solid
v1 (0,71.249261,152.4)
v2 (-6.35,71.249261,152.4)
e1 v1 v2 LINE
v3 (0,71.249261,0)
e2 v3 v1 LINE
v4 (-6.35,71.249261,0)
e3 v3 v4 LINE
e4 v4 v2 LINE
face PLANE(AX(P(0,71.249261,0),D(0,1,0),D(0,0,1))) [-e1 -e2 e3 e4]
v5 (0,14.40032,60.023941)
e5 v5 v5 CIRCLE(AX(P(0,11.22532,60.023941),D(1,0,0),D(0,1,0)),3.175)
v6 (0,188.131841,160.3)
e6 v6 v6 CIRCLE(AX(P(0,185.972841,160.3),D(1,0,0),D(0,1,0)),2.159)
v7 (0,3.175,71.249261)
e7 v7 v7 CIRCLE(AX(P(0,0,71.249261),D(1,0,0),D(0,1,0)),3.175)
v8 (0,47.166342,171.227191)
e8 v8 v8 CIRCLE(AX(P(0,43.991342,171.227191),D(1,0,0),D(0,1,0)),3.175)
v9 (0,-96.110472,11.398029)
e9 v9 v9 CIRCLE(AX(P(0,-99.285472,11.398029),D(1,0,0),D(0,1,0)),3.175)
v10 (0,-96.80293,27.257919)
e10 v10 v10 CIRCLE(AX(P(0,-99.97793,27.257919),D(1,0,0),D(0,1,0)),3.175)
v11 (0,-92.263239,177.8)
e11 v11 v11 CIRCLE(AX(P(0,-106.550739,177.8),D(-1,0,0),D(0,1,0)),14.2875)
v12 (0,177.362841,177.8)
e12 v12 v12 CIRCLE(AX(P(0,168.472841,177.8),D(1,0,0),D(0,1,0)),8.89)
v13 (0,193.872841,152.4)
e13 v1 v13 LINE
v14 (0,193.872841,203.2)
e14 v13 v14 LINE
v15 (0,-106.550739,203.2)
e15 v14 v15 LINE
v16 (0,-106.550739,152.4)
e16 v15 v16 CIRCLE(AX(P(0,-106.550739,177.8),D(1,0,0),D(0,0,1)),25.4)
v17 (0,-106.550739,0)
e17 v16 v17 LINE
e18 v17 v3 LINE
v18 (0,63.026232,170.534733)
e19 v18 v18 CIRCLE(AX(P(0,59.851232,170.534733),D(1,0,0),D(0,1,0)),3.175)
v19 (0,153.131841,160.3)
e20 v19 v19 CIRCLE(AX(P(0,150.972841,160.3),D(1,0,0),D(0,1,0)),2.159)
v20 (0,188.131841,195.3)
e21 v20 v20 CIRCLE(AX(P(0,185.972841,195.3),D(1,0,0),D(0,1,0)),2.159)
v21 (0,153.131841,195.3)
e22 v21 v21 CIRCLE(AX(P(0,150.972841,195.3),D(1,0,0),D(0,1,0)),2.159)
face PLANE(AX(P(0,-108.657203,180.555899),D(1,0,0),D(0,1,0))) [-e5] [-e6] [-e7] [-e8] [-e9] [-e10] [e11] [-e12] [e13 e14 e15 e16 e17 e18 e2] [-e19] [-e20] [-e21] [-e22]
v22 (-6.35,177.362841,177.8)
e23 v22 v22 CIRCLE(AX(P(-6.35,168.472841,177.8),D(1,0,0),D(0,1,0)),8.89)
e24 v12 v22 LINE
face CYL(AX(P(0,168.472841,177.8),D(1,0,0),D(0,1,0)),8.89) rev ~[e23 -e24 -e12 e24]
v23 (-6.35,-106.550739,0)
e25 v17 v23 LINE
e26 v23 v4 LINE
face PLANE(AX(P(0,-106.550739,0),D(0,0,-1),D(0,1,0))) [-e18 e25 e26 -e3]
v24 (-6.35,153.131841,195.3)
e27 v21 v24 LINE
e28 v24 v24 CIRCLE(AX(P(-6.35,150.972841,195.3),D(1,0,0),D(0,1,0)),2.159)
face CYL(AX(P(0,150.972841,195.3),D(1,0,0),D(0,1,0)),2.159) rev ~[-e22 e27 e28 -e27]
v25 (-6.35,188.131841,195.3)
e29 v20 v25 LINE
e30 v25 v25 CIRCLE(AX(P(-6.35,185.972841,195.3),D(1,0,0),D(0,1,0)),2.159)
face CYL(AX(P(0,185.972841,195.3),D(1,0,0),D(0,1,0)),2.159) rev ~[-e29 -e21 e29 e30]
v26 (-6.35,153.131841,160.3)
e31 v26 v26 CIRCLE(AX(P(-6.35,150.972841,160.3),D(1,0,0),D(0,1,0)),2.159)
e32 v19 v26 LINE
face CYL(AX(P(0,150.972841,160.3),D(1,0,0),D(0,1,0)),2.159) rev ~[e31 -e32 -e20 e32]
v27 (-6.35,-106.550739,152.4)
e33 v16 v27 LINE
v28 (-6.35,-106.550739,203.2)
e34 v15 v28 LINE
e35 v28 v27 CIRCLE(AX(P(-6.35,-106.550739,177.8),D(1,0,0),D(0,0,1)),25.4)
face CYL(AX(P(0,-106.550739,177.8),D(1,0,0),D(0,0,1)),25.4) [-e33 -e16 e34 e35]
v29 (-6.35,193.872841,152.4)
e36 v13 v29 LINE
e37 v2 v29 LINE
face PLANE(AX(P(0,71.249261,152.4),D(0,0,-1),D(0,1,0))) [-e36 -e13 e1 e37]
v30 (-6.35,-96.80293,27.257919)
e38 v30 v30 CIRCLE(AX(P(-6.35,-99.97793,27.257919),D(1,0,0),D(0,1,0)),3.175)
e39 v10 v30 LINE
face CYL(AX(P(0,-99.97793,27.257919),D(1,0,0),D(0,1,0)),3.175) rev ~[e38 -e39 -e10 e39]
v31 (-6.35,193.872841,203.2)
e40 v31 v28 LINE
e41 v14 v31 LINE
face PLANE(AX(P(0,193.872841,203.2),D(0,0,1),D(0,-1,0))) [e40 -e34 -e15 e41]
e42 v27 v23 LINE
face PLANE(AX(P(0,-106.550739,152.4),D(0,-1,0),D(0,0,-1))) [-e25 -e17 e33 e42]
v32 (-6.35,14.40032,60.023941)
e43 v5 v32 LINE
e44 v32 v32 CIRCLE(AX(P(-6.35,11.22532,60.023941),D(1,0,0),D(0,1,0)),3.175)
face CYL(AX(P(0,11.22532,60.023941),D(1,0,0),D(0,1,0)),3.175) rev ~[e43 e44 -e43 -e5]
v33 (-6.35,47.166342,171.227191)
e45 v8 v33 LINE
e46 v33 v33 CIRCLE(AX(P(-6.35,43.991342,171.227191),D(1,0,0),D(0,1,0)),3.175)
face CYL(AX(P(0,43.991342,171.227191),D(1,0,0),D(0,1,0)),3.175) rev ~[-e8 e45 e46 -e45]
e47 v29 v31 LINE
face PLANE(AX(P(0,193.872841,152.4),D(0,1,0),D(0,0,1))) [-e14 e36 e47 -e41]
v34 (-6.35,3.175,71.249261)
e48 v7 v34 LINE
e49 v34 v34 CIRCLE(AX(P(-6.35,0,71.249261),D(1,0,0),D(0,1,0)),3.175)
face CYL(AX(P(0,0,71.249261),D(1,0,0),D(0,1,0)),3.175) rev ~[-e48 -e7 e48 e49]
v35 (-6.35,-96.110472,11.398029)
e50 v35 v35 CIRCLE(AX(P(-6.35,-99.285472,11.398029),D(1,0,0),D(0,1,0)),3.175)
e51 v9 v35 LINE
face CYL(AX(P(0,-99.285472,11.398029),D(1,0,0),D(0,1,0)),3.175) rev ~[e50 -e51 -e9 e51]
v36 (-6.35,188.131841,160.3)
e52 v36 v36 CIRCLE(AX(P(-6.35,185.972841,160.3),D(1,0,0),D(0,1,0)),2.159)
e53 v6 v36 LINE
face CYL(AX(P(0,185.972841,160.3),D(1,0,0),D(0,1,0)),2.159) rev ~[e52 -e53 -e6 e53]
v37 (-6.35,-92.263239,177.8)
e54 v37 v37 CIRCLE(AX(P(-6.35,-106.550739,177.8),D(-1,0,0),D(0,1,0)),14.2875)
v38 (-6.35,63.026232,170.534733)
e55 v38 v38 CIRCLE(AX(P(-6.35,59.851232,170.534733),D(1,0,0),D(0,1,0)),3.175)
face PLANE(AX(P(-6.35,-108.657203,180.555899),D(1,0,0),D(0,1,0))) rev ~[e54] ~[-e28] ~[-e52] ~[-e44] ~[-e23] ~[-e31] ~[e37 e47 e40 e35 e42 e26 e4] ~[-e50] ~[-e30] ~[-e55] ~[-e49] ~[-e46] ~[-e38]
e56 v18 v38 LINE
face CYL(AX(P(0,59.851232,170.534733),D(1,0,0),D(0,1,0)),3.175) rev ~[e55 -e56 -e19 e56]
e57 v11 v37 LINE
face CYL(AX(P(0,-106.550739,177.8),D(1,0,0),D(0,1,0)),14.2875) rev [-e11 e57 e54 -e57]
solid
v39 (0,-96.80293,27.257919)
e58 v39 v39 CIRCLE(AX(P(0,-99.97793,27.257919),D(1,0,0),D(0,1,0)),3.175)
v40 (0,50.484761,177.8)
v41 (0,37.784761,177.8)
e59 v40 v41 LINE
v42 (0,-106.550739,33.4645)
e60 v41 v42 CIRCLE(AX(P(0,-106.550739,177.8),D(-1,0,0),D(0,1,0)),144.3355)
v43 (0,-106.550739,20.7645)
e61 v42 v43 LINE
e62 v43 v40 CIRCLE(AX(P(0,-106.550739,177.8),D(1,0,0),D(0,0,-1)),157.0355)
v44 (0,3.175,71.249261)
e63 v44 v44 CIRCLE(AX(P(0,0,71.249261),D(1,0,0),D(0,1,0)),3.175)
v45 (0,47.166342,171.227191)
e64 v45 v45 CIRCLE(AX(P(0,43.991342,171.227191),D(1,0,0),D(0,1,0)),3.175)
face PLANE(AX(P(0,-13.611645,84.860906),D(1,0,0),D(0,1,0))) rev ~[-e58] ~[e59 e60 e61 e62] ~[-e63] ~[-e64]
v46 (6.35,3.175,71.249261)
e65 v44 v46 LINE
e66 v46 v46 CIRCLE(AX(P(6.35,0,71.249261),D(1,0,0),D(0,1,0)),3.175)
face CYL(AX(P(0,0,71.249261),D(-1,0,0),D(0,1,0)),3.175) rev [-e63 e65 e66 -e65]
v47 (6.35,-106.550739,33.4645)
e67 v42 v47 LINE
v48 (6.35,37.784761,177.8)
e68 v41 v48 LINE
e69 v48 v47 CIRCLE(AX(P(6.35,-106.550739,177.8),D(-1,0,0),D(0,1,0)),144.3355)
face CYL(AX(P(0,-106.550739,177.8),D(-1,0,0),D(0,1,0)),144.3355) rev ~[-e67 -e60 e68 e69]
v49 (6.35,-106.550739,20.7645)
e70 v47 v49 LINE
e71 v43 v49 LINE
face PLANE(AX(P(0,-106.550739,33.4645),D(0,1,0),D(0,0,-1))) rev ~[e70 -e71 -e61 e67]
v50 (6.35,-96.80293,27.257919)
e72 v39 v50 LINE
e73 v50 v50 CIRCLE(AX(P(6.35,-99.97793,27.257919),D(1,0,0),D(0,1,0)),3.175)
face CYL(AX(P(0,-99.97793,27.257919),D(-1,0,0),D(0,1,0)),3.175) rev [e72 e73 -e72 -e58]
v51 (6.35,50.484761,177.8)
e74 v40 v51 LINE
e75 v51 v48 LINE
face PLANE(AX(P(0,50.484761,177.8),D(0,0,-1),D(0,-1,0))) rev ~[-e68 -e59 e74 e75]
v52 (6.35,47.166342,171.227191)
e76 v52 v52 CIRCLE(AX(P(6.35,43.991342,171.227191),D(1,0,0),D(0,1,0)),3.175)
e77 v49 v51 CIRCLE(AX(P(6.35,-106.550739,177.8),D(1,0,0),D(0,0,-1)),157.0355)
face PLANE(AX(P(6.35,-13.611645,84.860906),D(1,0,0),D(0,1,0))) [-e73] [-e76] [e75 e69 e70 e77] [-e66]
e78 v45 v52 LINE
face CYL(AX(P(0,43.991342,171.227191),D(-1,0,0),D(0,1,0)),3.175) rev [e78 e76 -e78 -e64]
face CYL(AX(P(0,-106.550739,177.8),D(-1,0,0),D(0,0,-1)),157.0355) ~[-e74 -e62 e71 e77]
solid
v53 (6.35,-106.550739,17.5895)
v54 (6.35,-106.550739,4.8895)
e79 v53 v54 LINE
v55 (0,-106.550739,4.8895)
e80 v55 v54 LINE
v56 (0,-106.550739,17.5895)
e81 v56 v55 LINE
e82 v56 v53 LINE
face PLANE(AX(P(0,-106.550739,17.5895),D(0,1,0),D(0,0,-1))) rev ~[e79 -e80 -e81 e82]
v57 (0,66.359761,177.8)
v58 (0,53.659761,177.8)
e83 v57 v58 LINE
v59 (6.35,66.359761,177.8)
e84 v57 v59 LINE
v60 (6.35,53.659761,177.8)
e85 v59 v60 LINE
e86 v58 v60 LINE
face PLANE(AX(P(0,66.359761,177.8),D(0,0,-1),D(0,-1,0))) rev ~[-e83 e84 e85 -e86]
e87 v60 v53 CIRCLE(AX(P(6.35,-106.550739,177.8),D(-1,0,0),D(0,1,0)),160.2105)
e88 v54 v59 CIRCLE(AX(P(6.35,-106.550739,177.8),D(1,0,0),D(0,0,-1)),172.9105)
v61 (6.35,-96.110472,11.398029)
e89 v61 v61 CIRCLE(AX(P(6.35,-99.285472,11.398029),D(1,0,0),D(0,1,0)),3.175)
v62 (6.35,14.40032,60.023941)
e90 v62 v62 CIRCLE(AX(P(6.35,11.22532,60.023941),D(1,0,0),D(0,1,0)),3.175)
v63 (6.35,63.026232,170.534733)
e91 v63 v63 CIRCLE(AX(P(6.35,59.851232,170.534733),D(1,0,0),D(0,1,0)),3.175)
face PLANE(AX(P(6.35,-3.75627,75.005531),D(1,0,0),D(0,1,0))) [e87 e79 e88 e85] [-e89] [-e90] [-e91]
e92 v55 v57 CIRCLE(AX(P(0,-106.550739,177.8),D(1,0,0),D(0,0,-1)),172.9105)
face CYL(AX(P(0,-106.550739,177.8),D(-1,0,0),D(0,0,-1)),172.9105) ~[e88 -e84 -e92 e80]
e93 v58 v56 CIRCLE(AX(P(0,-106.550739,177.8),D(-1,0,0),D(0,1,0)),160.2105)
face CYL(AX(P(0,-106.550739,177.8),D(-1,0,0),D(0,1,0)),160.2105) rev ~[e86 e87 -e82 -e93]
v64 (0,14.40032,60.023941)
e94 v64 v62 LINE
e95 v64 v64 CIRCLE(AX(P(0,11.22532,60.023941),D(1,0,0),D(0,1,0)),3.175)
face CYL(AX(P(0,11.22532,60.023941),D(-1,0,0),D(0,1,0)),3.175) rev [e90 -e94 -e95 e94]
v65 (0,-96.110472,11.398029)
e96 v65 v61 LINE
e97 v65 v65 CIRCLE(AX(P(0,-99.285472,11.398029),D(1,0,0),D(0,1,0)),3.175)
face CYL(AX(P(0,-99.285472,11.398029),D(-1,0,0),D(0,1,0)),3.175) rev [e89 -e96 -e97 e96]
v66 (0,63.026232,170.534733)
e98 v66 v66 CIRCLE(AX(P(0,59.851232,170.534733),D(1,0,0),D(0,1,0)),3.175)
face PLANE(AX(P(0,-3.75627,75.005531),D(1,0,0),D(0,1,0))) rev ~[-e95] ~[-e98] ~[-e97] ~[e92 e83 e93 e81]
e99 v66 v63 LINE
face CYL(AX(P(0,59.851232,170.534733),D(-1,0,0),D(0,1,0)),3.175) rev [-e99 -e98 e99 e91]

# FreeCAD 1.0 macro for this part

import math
import FreeCAD as App
import Part
import Sketcher
from FreeCAD import Vector
Q = App.Units.Quantity

doc = App.newDocument("Part")
body = doc.addObject("PartDesign::Body", "Body")

# Sketch on YZ plane
sketch1 = doc.addObject("Sketcher::SketchObject", "Sketch")
body.addObject(sketch1)
sketch1.AttachmentSupport = (doc.YZ_Plane, [""])
sketch1.MapMode = "FlatFace"
sketch1.addGeometry(Part.ArcOfCircle(Part.Circle(Vector(-106.550739, 177.8, 0), Vector(0, 0, 1), 25.4), math.radians(90), math.radians(270)), False)
sketch1.addGeometry(Part.LineSegment(Vector(-106.550739, 152.4, 0), Vector(-106.550739, 0, 0)), False)
sketch1.addGeometry(Part.LineSegment(Vector(-106.550739, 0, 0), Vector(71.249261, 0, 0)), False)
sketch1.addGeometry(Part.LineSegment(Vector(71.249261, 0, 0), Vector(71.249261, 152.4, 0)), False)
sketch1.addGeometry(Part.LineSegment(Vector(71.249261, 152.4, 0), Vector(193.872841, 152.4, 0)), False)
sketch1.addGeometry(Part.LineSegment(Vector(193.872841, 152.4, 0), Vector(193.872841, 203.2, 0)), False)
sketch1.addGeometry(Part.LineSegment(Vector(193.872841, 203.2, 0), Vector(-106.550739, 203.2, 0)), False)
sketch1.addGeometry(Part.Circle(Vector(-99.285472, 11.398029, 0), Vector(0, 0, 1), 3.175), False)
sketch1.addGeometry(Part.Circle(Vector(-99.97793, 27.257919, 0), Vector(0, 0, 1), 3.175), False)
sketch1.addGeometry(Part.Circle(Vector(11.22532, 60.023941, 0), Vector(0, 0, 1), 3.175), False)
sketch1.addGeometry(Part.Circle(Vector(0, 71.249261, 0), Vector(0, 0, 1), 3.175), False)
sketch1.addGeometry(Part.Circle(Vector(-106.550739, 177.8, 0), Vector(0, 0, 1), 14.2875), False)
sketch1.addGeometry(Part.Circle(Vector(43.991342, 171.227191, 0), Vector(0, 0, 1), 3.175), False)
sketch1.addGeometry(Part.Circle(Vector(59.851232, 170.534733, 0), Vector(0, 0, 1), 3.175), False)
sketch1.addGeometry(Part.Circle(Vector(150.972841, 160.3, 0), Vector(0, 0, 1), 2.159), False)
sketch1.addGeometry(Part.Circle(Vector(185.972841, 160.3, 0), Vector(0, 0, 1), 2.159), False)
sketch1.addGeometry(Part.Circle(Vector(168.472841, 177.8, 0), Vector(0, 0, 1), 8.89), False)
sketch1.addGeometry(Part.Circle(Vector(150.972841, 195.3, 0), Vector(0, 0, 1), 2.159), False)
sketch1.addGeometry(Part.Circle(Vector(185.972841, 195.3, 0), Vector(0, 0, 1), 2.159), False)
sketch1.addConstraint(Sketcher.Constraint("Coincident", 0, 2, 1, 1))
sketch1.addConstraint(Sketcher.Constraint("Coincident", 1, 2, 2, 1))
sketch1.addConstraint(Sketcher.Constraint("Coincident", 2, 2, 3, 1))
sketch1.addConstraint(Sketcher.Constraint("Coincident", 3, 2, 4, 1))
sketch1.addConstraint(Sketcher.Constraint("Coincident", 4, 2, 5, 1))
sketch1.addConstraint(Sketcher.Constraint("Coincident", 5, 2, 6, 1))
sketch1.addConstraint(Sketcher.Constraint("Tangent", 6, 2, 0, 1))
sketch1.addConstraint(Sketcher.Constraint("Vertical", 1))
sketch1.addConstraint(Sketcher.Constraint("Horizontal", 2))
sketch1.addConstraint(Sketcher.Constraint("Vertical", 3))
sketch1.addConstraint(Sketcher.Constraint("Horizontal", 4))
sketch1.addConstraint(Sketcher.Constraint("Vertical", 5))
sketch1.addConstraint(Sketcher.Constraint("Horizontal", 6))
sketch1.addConstraint(Sketcher.Constraint("Coincident", 11, 3, 0, 3))
sketch1.addConstraint(Sketcher.Constraint("Equal", 7, 8))
sketch1.addConstraint(Sketcher.Constraint("Equal", 8, 9))
sketch1.addConstraint(Sketcher.Constraint("Equal", 9, 10))
sketch1.addConstraint(Sketcher.Constraint("Equal", 10, 12))
sketch1.addConstraint(Sketcher.Constraint("Equal", 12, 13))
sketch1.addConstraint(Sketcher.Constraint("Equal", 14, 15))
sketch1.addConstraint(Sketcher.Constraint("Equal", 15, 17))
sketch1.addConstraint(Sketcher.Constraint("Equal", 17, 18))
sketch1.addConstraint(Sketcher.Constraint("PointOnObject", 10, 3, -2))
sketch1.addConstraint(Sketcher.Constraint("PointOnObject", 1, 2, -1))
sketch1.addConstraint(Sketcher.Constraint("Horizontal", 14, 3, 15, 3))
sketch1.addConstraint(Sketcher.Constraint("Horizontal", 11, 3, 16, 3))
sketch1.addConstraint(Sketcher.Constraint("Horizontal", 17, 3, 18, 3))
sketch1.addConstraint(Sketcher.Constraint("Horizontal", 0, 2, 3, 2))
sketch1.addConstraint(Sketcher.Constraint("Vertical", 14, 3, 17, 3))
sketch1.addConstraint(Sketcher.Constraint("Vertical", 15, 3, 18, 3))
sketch1.addConstraint(Sketcher.Constraint("Vertical", 11, 3, 0, 2))
sketch1.addConstraint(Sketcher.Constraint("Radius", 0, Q("1 in")))
sketch1.addConstraint(Sketcher.Constraint("Diameter", 16, Q("0.7 in")))
sketch1.addConstraint(Sketcher.Constraint("Diameter", 7, Q("0.25 in")))
sketch1.addConstraint(Sketcher.Constraint("Diameter", 14, Q("0.17 in")))
sketch1.addConstraint(Sketcher.Constraint("DistanceX", 2, 1, 2, 2, Q("7 in")))
sketch1.addConstraint(Sketcher.Constraint("DistanceY", 1, 2, 1, 1, Q("6 in")))
sketch1.addConstraint(Sketcher.Constraint("Diameter", 11, Q("1.125 in")))
sketch1.addConstraint(Sketcher.Constraint("DistanceX", 16, 3, 4, 2, Q("1 in")))
sketch1.addConstraint(Sketcher.Constraint("DistanceX", 4, 1, 4, 2, Q("4.8277 in")))
sketch1.addConstraint(Sketcher.Constraint("DistanceY", -1, 1, 14, 3, 160.3))
sketch1.addConstraint(Sketcher.Constraint("DistanceY", -1, 1, 17, 3, 195.3))
sketch1.addConstraint(Sketcher.Constraint("DistanceX", 12, 3, 14, 3, 106.981499))
sketch1.addConstraint(Sketcher.Constraint("DistanceX", 14, 3, 15, 3, 35.0))
sketch1.addConstraint(Sketcher.Constraint("DistanceX", 14, 3, 16, 3, 17.5))
sketch1.addConstraint(Sketcher.Constraint("DistanceX", 0, 3, -1, 1, 106.550739))
sketch1.addConstraint(Sketcher.Constraint("DistanceX", 7, 3, -1, 1, 99.285472))
sketch1.addConstraint(Sketcher.Constraint("DistanceY", -1, 1, 7, 3, 11.398029))
sketch1.addConstraint(Sketcher.Constraint("DistanceX", 8, 3, -1, 1, 99.97793))
sketch1.addConstraint(Sketcher.Constraint("DistanceY", -1, 1, 8, 3, 27.257919))
sketch1.addConstraint(Sketcher.Constraint("DistanceX", -1, 1, 9, 3, 11.22532))
sketch1.addConstraint(Sketcher.Constraint("DistanceY", -1, 1, 9, 3, 60.023941))
sketch1.addConstraint(Sketcher.Constraint("DistanceY", -1, 1, 10, 3, 71.249261))
sketch1.addConstraint(Sketcher.Constraint("DistanceY", -1, 1, 12, 3, 171.227191))
sketch1.addConstraint(Sketcher.Constraint("DistanceX", 12, 3, 13, 3, 15.859891))
sketch1.addConstraint(Sketcher.Constraint("DistanceY", 10, 3, 13, 3, 99.285472))
pad1 = doc.addObject("PartDesign::Pad", "Pad")
body.addObject(pad1)
pad1.Profile = sketch1
pad1.Length = Q("0.25 in")
pad1.Reversed = True
body2 = doc.addObject("PartDesign::Body", "Body001")

# Sketch on YZ plane
sketch2 = doc.addObject("Sketcher::SketchObject", "Sketch001")
body2.addObject(sketch2)
sketch2.AttachmentSupport = (doc.getObject("YZ_Plane001"), [""])
sketch2.MapMode = "FlatFace"
sketch2.addGeometry(Part.LineSegment(Vector(50.484761, 177.8, 0), Vector(37.784761, 177.8, 0)), False)
sketch2.addGeometry(Part.ArcOfCircle(Part.Circle(Vector(-106.550739, 177.8, 0), Vector(0, 0, 1), 144.3355), math.radians(-90), math.radians(0)), False)
sketch2.addGeometry(Part.LineSegment(Vector(-106.550739, 33.4645, 0), Vector(-106.550739, 20.7645, 0)), False)
sketch2.addGeometry(Part.ArcOfCircle(Part.Circle(Vector(-106.550739, 177.8, 0), Vector(0, 0, 1), 157.0355), math.radians(-90), math.radians(0)), False)
sketch2.addGeometry(Part.Circle(Vector(-99.97793, 27.257919, 0), Vector(0, 0, 1), 3.175), False)
sketch2.addGeometry(Part.Circle(Vector(0, 71.249261, 0), Vector(0, 0, 1), 3.175), False)
sketch2.addGeometry(Part.Circle(Vector(43.991342, 171.227191, 0), Vector(0, 0, 1), 3.175), False)
sketch2.addConstraint(Sketcher.Constraint("Coincident", 0, 2, 1, 2))
sketch2.addConstraint(Sketcher.Constraint("Coincident", 1, 1, 2, 1))
sketch2.addConstraint(Sketcher.Constraint("Coincident", 2, 2, 3, 1))
sketch2.addConstraint(Sketcher.Constraint("Coincident", 3, 2, 0, 1))
sketch2.addConstraint(Sketcher.Constraint("Horizontal", 0))
sketch2.addConstraint(Sketcher.Constraint("Vertical", 2))
sketch2.addConstraint(Sketcher.Constraint("Coincident", 3, 3, 1, 3))
sketch2.addConstraint(Sketcher.Constraint("Equal", 4, 5))
sketch2.addConstraint(Sketcher.Constraint("Equal", 5, 6))
sketch2.addConstraint(Sketcher.Constraint("PointOnObject", 5, 3, -2))
sketch2.addConstraint(Sketcher.Constraint("Horizontal", 3, 3, 0, 2))
sketch2.addConstraint(Sketcher.Constraint("Vertical", 3, 3, 1, 1))
sketch2.addConstraint(Sketcher.Constraint("Diameter", 4, Q("0.25 in")))
sketch2.addConstraint(Sketcher.Constraint("DistanceX", 0, 2, 0, 1, Q("0.5 in")))
sketch2.addConstraint(Sketcher.Constraint("DistanceY", -1, 1, 1, 3, Q("7 in")))
sketch2.addConstraint(Sketcher.Constraint("Radius", 1, Q("5.6825 in")))
sketch2.addConstraint(Sketcher.Constraint("DistanceX", 1, 3, -1, 1, 106.550739))
sketch2.addConstraint(Sketcher.Constraint("DistanceX", 4, 3, -1, 1, 99.97793))
sketch2.addConstraint(Sketcher.Constraint("DistanceY", -1, 1, 4, 3, 27.257919))
sketch2.addConstraint(Sketcher.Constraint("DistanceY", -1, 1, 5, 3, 71.249261))
sketch2.addConstraint(Sketcher.Constraint("DistanceX", -1, 1, 6, 3, 43.991342))
sketch2.addConstraint(Sketcher.Constraint("DistanceY", -1, 1, 6, 3, 171.227191))
pad2 = doc.addObject("PartDesign::Pad", "Pad001")
body2.addObject(pad2)
pad2.Profile = sketch2
pad2.Length = Q("0.25 in")
body3 = doc.addObject("PartDesign::Body", "Body002")

# Sketch on YZ plane
sketch3 = doc.addObject("Sketcher::SketchObject", "Sketch002")
body3.addObject(sketch3)
sketch3.AttachmentSupport = (doc.getObject("YZ_Plane002"), [""])
sketch3.MapMode = "FlatFace"
sketch3.addGeometry(Part.LineSegment(Vector(66.359761, 177.8, 0), Vector(53.659761, 177.8, 0)), False)
sketch3.addGeometry(Part.ArcOfCircle(Part.Circle(Vector(-106.550739, 177.8, 0), Vector(0, 0, 1), 160.2105), math.radians(-90), math.radians(0)), False)
sketch3.addGeometry(Part.LineSegment(Vector(-106.550739, 17.5895, 0), Vector(-106.550739, 4.8895, 0)), False)
sketch3.addGeometry(Part.ArcOfCircle(Part.Circle(Vector(-106.550739, 177.8, 0), Vector(0, 0, 1), 172.9105), math.radians(-90), math.radians(0)), False)
sketch3.addGeometry(Part.Circle(Vector(-99.285472, 11.398029, 0), Vector(0, 0, 1), 3.175), False)
sketch3.addGeometry(Part.Circle(Vector(11.22532, 60.023941, 0), Vector(0, 0, 1), 3.175), False)
sketch3.addGeometry(Part.Circle(Vector(59.851232, 170.534733, 0), Vector(0, 0, 1), 3.175), False)
sketch3.addConstraint(Sketcher.Constraint("Coincident", 0, 2, 1, 2))
sketch3.addConstraint(Sketcher.Constraint("Coincident", 1, 1, 2, 1))
sketch3.addConstraint(Sketcher.Constraint("Coincident", 2, 2, 3, 1))
sketch3.addConstraint(Sketcher.Constraint("Coincident", 3, 2, 0, 1))
sketch3.addConstraint(Sketcher.Constraint("Horizontal", 0))
sketch3.addConstraint(Sketcher.Constraint("Vertical", 2))
sketch3.addConstraint(Sketcher.Constraint("Coincident", 3, 3, 1, 3))
sketch3.addConstraint(Sketcher.Constraint("Equal", 4, 5))
sketch3.addConstraint(Sketcher.Constraint("Equal", 5, 6))
sketch3.addConstraint(Sketcher.Constraint("Horizontal", 3, 3, 0, 2))
sketch3.addConstraint(Sketcher.Constraint("Vertical", 3, 3, 1, 1))
sketch3.addConstraint(Sketcher.Constraint("Diameter", 4, Q("0.25 in")))
sketch3.addConstraint(Sketcher.Constraint("DistanceX", 0, 2, 0, 1, Q("0.5 in")))
sketch3.addConstraint(Sketcher.Constraint("DistanceY", -1, 1, 1, 3, Q("7 in")))
sketch3.addConstraint(Sketcher.Constraint("Radius", 1, Q("6.3075 in")))
sketch3.addConstraint(Sketcher.Constraint("DistanceX", 1, 3, -1, 1, 106.550739))
sketch3.addConstraint(Sketcher.Constraint("DistanceX", 4, 3, -1, 1, 99.285472))
sketch3.addConstraint(Sketcher.Constraint("DistanceY", -1, 1, 4, 3, 11.398029))
sketch3.addConstraint(Sketcher.Constraint("DistanceX", -1, 1, 5, 3, 11.22532))
sketch3.addConstraint(Sketcher.Constraint("DistanceY", -1, 1, 5, 3, 60.023941))
sketch3.addConstraint(Sketcher.Constraint("DistanceX", 1, 3, 6, 3, 166.401971))
sketch3.addConstraint(Sketcher.Constraint("DistanceY", -1, 1, 6, 3, 170.534733))
pad3 = doc.addObject("PartDesign::Pad", "Pad002")
body3.addObject(pad3)
pad3.Profile = sketch3
pad3.Length = Q("0.25 in")

doc.recompute()
